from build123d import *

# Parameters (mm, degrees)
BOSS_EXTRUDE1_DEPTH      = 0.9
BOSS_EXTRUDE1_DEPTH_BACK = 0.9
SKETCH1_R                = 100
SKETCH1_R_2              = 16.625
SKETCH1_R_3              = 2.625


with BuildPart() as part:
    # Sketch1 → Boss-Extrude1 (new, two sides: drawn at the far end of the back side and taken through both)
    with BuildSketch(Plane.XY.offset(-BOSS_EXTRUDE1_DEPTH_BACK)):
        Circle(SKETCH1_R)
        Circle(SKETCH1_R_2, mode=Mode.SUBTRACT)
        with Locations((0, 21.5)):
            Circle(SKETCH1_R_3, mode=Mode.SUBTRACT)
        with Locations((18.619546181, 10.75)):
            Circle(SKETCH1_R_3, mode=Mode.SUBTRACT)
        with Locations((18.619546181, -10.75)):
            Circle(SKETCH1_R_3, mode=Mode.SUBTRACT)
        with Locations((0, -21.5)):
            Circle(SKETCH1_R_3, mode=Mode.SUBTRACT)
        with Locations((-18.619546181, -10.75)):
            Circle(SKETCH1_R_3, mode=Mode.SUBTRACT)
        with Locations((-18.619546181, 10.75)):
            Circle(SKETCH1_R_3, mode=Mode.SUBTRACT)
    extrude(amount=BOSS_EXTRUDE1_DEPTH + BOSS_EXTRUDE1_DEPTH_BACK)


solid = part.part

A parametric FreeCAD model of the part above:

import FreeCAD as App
import Part
import Sketcher

V = App.Vector
Q = App.Units.Quantity

doc = App.newDocument("Part")
body = doc.addObject("PartDesign::Body", "Body")

sketch1 = doc.addObject("Sketcher::SketchObject", "Sketch")
body.addObject(sketch1)
sketch1.AttachmentSupport = (doc.XY_Plane, [""])
sketch1.MapMode = "FlatFace"
sketch1.addGeometry(Part.Circle(V(0, 0, 0), V(0, 0, 1), 100), False)
sketch1.addGeometry(Part.Circle(V(0, -21.5, 0), V(0, 0, 1), 2.6), False)
sketch1.addGeometry(Part.Circle(V(-18.6, -10.8, 0), V(0, 0, 1), 2.6), False)
sketch1.addGeometry(Part.Circle(V(18.6, -10.8, 0), V(0, 0, 1), 2.6), False)
sketch1.addGeometry(Part.Circle(V(-18.6, 10.8, 0), V(0, 0, 1), 2.6), False)
sketch1.addGeometry(Part.Circle(V(0, 0, 0), V(0, 0, 1), 16.6), False)
sketch1.addGeometry(Part.Circle(V(0, 21.5, 0), V(0, 0, 1), 2.6), False)
sketch1.addGeometry(Part.Circle(V(18.6, 10.8, 0), V(0, 0, 1), 2.6), False)
sketch1.addConstraint(Sketcher.Constraint("Coincident", 0, 3, -1, 1))
sketch1.addConstraint(Sketcher.Constraint("Coincident", 5, 3, -1, 1))
sketch1.addConstraint(Sketcher.Constraint("Equal", 1, 2))
sketch1.addConstraint(Sketcher.Constraint("Equal", 2, 3))
sketch1.addConstraint(Sketcher.Constraint("Equal", 3, 4))
sketch1.addConstraint(Sketcher.Constraint("Equal", 4, 6))
sketch1.addConstraint(Sketcher.Constraint("Equal", 6, 7))
sketch1.addConstraint(Sketcher.Constraint("Symmetric", 3, 3, 4, 3, -1, 1))
sketch1.addConstraint(Sketcher.Constraint("Symmetric", 1, 3, 6, 3, -1, 1))
sketch1.addConstraint(Sketcher.Constraint("Symmetric", 2, 3, 7, 3, -1, 1))
sketch1.addConstraint(Sketcher.Constraint("Symmetric", 2, 3, 3, 3, -2))
sketch1.addConstraint(Sketcher.Constraint("PointOnObject", 1, 3, -2))
sketch1.addConstraint(Sketcher.Constraint("Diameter", 0, Q("200 mm")))
sketch1.addConstraint(Sketcher.Constraint("Diameter", 1, Q("5.25 mm")))
sketch1.addConstraint(Sketcher.Constraint("Diameter", 5, Q("33.25 mm")))
sketch1.addConstraint(Sketcher.Constraint("DistanceY", 1, 3, -1, 1, Q("21.5 mm")))
sketch1.addConstraint(Sketcher.Constraint("DistanceY", 2, 3, 4, 3, Q("21.5 mm")))
sketch1.addConstraint(Sketcher.Constraint("DistanceX", 2, 3, -1, 1, Q("18.619546 mm")))
pad1 = doc.addObject("PartDesign::Pad", "Pad")
body.addObject(pad1)
pad1.Profile = sketch1
pad1.Type = "TwoLengths"
pad1.Length = 0.9
pad1.Length2 = 0.9

doc.recompute()
